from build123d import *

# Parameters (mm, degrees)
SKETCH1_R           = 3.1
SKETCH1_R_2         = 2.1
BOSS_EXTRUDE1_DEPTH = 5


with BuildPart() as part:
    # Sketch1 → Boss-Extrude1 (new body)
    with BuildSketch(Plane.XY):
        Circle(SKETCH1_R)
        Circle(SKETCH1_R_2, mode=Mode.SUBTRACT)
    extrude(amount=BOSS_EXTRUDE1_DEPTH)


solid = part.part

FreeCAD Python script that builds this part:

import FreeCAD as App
import Part
import Sketcher

V = App.Vector

doc = App.newDocument("Part")
params = doc.addObject("Spreadsheet::Sheet", "Params")
for row, (alias, value) in enumerate([
    ("sketch1_diameter", "6.2 mm"),
    ("sketch1_diameter2", "4.2 mm"),
    ("pad1_length", "5 mm"),
], start=1):
    params.set(f"A{row}", alias)
    params.set(f"B{row}", "=" + value)
    params.setAlias(f"B{row}", alias)

body = doc.addObject("PartDesign::Body", "Body")

sketch1 = doc.addObject("Sketcher::SketchObject", "Sketch")
body.addObject(sketch1)
sketch1.AttachmentSupport = (doc.XY_Plane, [""])
sketch1.MapMode = "FlatFace"
sketch1.addGeometry([
    Part.Circle(V(0, 0, 0), V(0, 0, 1), 3.1),
    Part.Circle(V(0, 0, 0), V(0, 0, 1), 2.1),
], False)
sketch1.addConstraint([
    Sketcher.Constraint("Coincident", 0, 3, -1, 1),
    Sketcher.Constraint("Coincident", 1, 3, -1, 1),
    Sketcher.Constraint("Diameter", 0, 6.2),
    Sketcher.Constraint("Diameter", 1, 4.2),
])
sketch1.setExpression("Constraints[2]", "Params.sketch1_diameter")
sketch1.setExpression("Constraints[3]", "Params.sketch1_diameter2")
pad1 = doc.addObject("PartDesign::Pad", "Pad")
body.addObject(pad1)
pad1.Profile = sketch1
pad1.setExpression("Length", "Params.pad1_length")

doc.recompute()
